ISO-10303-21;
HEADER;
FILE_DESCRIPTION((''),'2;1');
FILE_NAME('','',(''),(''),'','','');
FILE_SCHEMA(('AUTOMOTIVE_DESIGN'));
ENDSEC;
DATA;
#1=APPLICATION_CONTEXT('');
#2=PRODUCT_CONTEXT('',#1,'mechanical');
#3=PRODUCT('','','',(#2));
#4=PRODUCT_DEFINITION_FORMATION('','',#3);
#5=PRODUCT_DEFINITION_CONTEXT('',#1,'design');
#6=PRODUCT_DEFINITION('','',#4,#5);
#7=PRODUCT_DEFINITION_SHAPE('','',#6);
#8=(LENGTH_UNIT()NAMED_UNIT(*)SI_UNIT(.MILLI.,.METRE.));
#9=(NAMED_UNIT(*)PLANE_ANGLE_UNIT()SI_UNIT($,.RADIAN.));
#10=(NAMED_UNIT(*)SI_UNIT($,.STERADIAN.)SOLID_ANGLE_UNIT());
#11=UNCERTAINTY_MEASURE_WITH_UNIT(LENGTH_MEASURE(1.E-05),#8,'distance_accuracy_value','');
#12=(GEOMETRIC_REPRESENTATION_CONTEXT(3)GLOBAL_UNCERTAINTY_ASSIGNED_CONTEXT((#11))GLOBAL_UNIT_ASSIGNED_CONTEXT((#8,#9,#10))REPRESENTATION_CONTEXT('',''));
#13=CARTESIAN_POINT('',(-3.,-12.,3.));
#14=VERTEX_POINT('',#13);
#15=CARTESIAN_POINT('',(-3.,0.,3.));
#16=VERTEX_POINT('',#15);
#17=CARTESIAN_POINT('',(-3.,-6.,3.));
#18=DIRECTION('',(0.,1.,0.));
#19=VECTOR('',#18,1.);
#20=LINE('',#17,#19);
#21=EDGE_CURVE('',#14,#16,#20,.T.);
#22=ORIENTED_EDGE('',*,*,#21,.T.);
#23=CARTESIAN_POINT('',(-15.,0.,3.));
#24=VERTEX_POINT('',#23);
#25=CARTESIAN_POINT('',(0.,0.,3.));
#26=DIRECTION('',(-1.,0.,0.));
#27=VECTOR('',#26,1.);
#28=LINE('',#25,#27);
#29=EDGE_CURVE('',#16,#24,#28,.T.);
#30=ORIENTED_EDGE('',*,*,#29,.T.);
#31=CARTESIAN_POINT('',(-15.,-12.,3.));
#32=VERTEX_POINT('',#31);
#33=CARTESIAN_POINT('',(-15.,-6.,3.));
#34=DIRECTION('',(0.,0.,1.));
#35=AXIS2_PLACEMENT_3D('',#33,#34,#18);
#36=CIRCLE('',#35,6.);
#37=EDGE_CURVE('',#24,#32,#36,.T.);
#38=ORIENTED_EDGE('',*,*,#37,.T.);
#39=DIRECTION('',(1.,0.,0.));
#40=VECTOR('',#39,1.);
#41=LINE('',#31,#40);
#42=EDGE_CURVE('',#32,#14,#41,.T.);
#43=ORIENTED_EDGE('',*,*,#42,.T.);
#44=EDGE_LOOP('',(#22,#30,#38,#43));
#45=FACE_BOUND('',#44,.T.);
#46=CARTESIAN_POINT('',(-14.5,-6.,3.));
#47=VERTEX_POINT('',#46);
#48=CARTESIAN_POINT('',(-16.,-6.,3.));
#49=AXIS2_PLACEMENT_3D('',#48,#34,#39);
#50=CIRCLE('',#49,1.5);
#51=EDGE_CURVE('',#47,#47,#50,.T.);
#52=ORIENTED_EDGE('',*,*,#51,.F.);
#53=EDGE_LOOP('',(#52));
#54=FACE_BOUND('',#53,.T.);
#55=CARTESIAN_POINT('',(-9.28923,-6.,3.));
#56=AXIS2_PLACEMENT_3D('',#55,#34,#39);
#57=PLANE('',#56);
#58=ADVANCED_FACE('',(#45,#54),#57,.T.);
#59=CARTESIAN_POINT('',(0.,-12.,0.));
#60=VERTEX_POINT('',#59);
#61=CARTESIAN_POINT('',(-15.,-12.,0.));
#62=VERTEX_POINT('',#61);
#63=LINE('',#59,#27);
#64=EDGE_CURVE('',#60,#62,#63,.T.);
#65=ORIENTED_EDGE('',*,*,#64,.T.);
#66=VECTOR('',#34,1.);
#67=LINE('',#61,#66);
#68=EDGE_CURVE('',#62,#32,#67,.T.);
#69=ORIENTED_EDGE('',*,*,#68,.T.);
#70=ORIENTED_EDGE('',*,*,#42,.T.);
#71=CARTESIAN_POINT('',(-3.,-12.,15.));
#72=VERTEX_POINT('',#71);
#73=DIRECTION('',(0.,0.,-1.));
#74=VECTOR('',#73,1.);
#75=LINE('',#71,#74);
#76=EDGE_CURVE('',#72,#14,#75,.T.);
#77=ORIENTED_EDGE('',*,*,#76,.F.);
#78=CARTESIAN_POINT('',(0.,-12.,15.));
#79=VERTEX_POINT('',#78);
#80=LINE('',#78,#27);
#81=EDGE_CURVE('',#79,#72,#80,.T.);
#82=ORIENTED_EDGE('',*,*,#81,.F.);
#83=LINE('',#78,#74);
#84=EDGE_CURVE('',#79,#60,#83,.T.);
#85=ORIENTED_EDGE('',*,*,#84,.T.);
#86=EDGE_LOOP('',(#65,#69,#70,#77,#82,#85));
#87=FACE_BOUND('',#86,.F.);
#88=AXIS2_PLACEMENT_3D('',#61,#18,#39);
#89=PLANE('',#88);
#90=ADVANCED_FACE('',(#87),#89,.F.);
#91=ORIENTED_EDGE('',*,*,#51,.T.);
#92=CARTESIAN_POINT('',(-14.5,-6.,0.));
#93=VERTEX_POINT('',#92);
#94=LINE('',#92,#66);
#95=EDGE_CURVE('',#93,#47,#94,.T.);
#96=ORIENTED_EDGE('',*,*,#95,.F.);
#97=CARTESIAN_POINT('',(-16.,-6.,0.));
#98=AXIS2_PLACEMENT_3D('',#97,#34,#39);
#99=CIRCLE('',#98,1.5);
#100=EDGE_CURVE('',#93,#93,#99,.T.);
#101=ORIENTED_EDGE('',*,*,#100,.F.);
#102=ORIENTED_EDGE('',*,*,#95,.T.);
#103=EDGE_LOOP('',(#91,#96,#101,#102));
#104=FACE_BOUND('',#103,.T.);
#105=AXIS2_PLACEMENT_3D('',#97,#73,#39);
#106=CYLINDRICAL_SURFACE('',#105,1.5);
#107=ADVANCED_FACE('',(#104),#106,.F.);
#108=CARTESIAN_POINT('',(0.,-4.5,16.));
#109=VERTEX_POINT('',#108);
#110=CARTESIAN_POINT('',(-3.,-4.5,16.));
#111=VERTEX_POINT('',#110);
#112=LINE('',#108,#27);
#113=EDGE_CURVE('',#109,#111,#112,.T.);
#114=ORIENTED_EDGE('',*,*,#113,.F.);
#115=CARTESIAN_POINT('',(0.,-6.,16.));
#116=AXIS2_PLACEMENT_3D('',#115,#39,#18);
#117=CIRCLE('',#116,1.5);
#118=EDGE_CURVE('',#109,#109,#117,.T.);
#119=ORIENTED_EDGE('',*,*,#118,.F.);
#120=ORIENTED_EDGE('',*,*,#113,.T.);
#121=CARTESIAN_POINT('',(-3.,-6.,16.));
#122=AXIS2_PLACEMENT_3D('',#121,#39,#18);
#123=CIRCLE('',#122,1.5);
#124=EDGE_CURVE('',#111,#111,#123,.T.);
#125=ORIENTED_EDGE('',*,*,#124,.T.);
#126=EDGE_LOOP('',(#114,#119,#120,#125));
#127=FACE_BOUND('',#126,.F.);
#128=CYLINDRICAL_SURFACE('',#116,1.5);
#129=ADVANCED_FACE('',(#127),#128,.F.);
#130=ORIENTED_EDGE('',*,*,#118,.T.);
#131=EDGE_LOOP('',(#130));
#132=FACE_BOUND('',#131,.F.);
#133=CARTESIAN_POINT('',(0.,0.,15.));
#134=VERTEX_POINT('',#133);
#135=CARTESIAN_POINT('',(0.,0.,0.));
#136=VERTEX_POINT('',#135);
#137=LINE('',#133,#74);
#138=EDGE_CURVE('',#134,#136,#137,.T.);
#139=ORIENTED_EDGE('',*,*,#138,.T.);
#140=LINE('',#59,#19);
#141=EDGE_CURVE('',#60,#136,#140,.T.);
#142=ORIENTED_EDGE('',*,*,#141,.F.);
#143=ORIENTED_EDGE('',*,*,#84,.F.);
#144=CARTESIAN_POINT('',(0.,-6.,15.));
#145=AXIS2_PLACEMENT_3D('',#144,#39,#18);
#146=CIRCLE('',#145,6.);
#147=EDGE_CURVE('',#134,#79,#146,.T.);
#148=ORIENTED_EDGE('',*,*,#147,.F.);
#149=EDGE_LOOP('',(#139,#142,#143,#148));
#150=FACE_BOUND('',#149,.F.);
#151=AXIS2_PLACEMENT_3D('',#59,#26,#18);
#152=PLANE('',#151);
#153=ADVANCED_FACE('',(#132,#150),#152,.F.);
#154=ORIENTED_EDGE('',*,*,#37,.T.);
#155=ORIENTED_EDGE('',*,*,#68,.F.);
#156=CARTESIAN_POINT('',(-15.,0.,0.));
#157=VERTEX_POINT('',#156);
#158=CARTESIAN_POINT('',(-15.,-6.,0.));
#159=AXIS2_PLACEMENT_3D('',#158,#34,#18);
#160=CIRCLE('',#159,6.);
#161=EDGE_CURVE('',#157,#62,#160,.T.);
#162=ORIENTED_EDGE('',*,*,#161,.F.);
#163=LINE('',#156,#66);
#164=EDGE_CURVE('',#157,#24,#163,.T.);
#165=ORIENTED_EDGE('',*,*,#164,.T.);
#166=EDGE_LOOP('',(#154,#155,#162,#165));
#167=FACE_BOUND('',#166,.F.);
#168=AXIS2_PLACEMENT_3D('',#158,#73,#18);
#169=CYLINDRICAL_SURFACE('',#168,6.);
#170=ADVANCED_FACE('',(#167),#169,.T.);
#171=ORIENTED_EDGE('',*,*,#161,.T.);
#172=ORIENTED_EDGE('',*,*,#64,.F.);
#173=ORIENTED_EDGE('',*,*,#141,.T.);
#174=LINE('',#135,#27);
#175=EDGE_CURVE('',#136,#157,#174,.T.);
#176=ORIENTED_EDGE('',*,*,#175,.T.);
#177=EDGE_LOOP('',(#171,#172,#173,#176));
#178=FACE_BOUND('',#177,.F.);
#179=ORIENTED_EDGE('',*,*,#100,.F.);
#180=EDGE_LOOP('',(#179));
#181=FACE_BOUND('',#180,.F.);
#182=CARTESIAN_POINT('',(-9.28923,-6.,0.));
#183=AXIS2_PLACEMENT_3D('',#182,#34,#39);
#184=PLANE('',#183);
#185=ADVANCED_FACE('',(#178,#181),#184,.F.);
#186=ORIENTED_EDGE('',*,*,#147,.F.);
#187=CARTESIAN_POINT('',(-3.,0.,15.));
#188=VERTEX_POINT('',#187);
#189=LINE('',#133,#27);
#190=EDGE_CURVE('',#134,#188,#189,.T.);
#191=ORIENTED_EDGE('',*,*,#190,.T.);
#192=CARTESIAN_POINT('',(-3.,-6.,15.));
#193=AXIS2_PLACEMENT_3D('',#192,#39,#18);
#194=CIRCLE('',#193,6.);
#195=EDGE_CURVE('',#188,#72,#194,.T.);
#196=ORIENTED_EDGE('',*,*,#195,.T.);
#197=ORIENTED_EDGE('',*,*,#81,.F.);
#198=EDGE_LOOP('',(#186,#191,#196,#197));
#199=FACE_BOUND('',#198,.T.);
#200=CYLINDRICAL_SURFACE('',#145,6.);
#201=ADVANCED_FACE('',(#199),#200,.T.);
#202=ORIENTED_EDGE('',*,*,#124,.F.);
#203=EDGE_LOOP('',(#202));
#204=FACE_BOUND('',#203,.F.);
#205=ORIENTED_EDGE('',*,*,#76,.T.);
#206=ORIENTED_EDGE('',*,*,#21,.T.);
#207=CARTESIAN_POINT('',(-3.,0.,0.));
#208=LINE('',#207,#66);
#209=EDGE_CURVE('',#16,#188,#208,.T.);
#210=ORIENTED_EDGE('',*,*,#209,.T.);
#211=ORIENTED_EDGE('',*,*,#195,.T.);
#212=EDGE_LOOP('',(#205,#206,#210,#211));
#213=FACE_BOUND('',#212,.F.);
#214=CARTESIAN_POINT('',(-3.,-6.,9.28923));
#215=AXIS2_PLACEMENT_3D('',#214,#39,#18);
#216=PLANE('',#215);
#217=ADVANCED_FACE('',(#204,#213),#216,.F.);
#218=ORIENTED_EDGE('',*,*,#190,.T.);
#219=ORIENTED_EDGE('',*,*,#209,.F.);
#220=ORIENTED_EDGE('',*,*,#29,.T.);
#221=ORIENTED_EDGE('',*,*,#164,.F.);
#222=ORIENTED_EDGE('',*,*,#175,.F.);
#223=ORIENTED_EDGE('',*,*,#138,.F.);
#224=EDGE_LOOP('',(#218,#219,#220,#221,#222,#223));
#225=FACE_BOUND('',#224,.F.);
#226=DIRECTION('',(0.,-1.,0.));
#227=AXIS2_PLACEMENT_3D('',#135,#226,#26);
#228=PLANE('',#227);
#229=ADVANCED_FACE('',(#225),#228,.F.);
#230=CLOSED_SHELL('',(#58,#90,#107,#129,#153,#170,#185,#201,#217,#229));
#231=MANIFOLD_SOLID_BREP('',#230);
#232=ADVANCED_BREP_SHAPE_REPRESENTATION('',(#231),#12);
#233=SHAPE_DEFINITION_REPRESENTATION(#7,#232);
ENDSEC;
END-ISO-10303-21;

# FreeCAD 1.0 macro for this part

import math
import FreeCAD as App
import Part
import Sketcher
Q = App.Units.Quantity

doc = App.newDocument("Part")
params = doc.addObject("Spreadsheet::Sheet", "Params")
for row, (alias, value) in enumerate([
    ("sketch1_diameter", "3 mm"),
    ("sketch1_radius", "6 mm"),
    ("sketch1_width", "15 mm"),
    ("pad1_length", "3 mm"),
    ("sketch2_diameter", "3 mm"),
    ("sketch2_radius", "6 mm"),
    ("sketch2_height", "15 mm"),
    ("pad2_length", "3 mm"),
], start=1):
    params.set(f"A{row}", alias)
    params.set(f"B{row}", "=" + value)
    params.setAlias(f"B{row}", alias)

body = doc.addObject("PartDesign::Body", "Body")

# Sketch on XY plane
sketch1 = body.newObject("Sketcher::SketchObject", "Sketch")
sketch1.AttachmentSupport = (doc.getObject("XY_Plane"), [""])
sketch1.MapMode = "FlatFace"
sketch1.addGeometry(Part.LineSegment(App.Vector(0, 0, 0), App.Vector(-15, 0, 0)), False)
sketch1.addGeometry(Part.ArcOfCircle(Part.Circle(App.Vector(-15, -6, 0), App.Vector(0, 0, 1), 6), math.radians(90), math.radians(270)), False)
sketch1.addGeometry(Part.LineSegment(App.Vector(-15, -12, 0), App.Vector(0, -12, 0)), False)
sketch1.addGeometry(Part.LineSegment(App.Vector(0, -12, 0), App.Vector(0, 0, 0)), False)
sketch1.addGeometry(Part.Circle(App.Vector(-16, -6, 0), App.Vector(0, 0, 1), 1.5), False)
sketch1.addConstraint(Sketcher.Constraint("Tangent", 0, 2, 1, 1))
sketch1.addConstraint(Sketcher.Constraint("Tangent", 1, 2, 2, 1))
sketch1.addConstraint(Sketcher.Constraint("Coincident", 2, 2, 3, 1))
sketch1.addConstraint(Sketcher.Constraint("Coincident", 3, 2, 0, 1))
sketch1.addConstraint(Sketcher.Constraint("Horizontal", 0))
sketch1.addConstraint(Sketcher.Constraint("Horizontal", 2))
sketch1.addConstraint(Sketcher.Constraint("Vertical", 3))
sketch1.addConstraint(Sketcher.Constraint("Coincident", 3, 2, -1, 1))
sketch1.addConstraint(Sketcher.Constraint("Horizontal", 1, 3, 4, 3))
sketch1.addConstraint(Sketcher.Constraint("Diameter", 4, Q("3 mm")))
sketch1.addConstraint(Sketcher.Constraint("Radius", 1, Q("6 mm")))
sketch1.addConstraint(Sketcher.Constraint("DistanceX", 0, 2, 0, 1, Q("15 mm")))
sketch1.addConstraint(Sketcher.Constraint("DistanceX", 4, 3, -1, 1, Q("16 mm")))
sketch1.setExpression("Constraints[9]", "Params.sketch1_diameter")
sketch1.setExpression("Constraints[10]", "Params.sketch1_radius")
sketch1.setExpression("Constraints[11]", "Params.sketch1_width")
pad1 = body.newObject("PartDesign::Pad", "Pad")
pad1.Profile = sketch1
pad1.setExpression("Length", "Params.pad1_length")

# Sketch on YZ plane
sketch2 = body.newObject("Sketcher::SketchObject", "Sketch001")
sketch2.AttachmentSupport = (doc.getObject("YZ_Plane"), [""])
sketch2.MapMode = "FlatFace"
sketch2.addGeometry(Part.LineSegment(App.Vector(-12, 0, 0), App.Vector(0, 0, 0)), False)
sketch2.addGeometry(Part.LineSegment(App.Vector(0, 0, 0), App.Vector(0, 15, 0)), False)
sketch2.addGeometry(Part.ArcOfCircle(Part.Circle(App.Vector(-6, 15, 0), App.Vector(0, 0, 1), 6), math.radians(0), math.radians(180)), False)
sketch2.addGeometry(Part.LineSegment(App.Vector(-12, 15, 0), App.Vector(-12, 0, 0)), False)
sketch2.addGeometry(Part.Circle(App.Vector(-6, 16, 0), App.Vector(0, 0, 1), 1.5), False)
sketch2.addConstraint(Sketcher.Constraint("Coincident", 0, 2, 1, 1))
sketch2.addConstraint(Sketcher.Constraint("Tangent", 1, 2, 2, 1))
sketch2.addConstraint(Sketcher.Constraint("Tangent", 2, 2, 3, 1))
sketch2.addConstraint(Sketcher.Constraint("Coincident", 3, 2, 0, 1))
sketch2.addConstraint(Sketcher.Constraint("Horizontal", 0))
sketch2.addConstraint(Sketcher.Constraint("Vertical", 1))
sketch2.addConstraint(Sketcher.Constraint("Vertical", 3))
sketch2.addConstraint(Sketcher.Constraint("Coincident", 0, 2, -1, 1))
sketch2.addConstraint(Sketcher.Constraint("Vertical", 2, 3, 4, 3))
sketch2.addConstraint(Sketcher.Constraint("Diameter", 4, Q("3 mm")))
sketch2.addConstraint(Sketcher.Constraint("Radius", 2, Q("6 mm")))
sketch2.addConstraint(Sketcher.Constraint("DistanceY", 1, 1, 1, 2, Q("15 mm")))
sketch2.addConstraint(Sketcher.Constraint("DistanceY", -1, 1, 4, 3, Q("16 mm")))
sketch2.setExpression("Constraints[9]", "Params.sketch2_diameter")
sketch2.setExpression("Constraints[10]", "Params.sketch2_radius")
sketch2.setExpression("Constraints[11]", "Params.sketch2_height")
pad2 = body.newObject("PartDesign::Pad", "Pad001")
pad2.Profile = sketch2
pad2.setExpression("Length", "Params.pad2_length")
pad2.Reversed = True

doc.recompute()
